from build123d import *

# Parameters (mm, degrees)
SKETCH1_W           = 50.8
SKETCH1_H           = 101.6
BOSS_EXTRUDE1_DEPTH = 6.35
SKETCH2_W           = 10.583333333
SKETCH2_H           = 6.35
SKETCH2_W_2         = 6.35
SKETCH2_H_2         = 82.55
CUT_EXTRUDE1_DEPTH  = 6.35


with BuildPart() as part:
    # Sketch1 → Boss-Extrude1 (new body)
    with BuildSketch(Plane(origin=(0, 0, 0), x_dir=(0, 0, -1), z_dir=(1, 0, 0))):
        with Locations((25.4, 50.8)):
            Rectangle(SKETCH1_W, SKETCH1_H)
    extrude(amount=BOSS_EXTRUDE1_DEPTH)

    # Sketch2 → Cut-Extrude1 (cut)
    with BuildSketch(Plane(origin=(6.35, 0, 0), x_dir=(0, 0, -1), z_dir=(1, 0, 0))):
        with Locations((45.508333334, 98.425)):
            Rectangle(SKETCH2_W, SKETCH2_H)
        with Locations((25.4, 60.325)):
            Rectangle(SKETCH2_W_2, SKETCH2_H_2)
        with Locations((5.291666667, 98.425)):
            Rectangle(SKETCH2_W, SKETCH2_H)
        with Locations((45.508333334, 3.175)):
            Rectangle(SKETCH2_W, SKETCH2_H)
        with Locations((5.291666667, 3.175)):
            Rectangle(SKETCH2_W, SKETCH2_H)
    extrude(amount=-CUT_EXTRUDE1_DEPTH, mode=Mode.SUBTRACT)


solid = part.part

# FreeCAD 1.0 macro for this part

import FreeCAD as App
import Part
import Sketcher
Q = App.Units.Quantity


def add_polygon(sketch, points):
    """Adds a closed chain of lines whose ends are joined by coincident constraints."""
    first, n = sketch.GeometryCount, len(points)
    for a, b in zip(points, points[1:] + points[:1]):
        sketch.addGeometry(Part.LineSegment(App.Vector(*a, 0), App.Vector(*b, 0)), False)
    for i in range(n):
        sketch.addConstraint(Sketcher.Constraint("Coincident", first + i, 2, first + (i + 1) % n, 1))

doc = App.newDocument("Part")
params = doc.addObject("Spreadsheet::Sheet", "Params")
for row, (alias, value) in enumerate([
    ("sketch1_width", "4 in"),
    ("sketch1_height", "2 in"),
    ("pad1_length", "0.25 in"),
    ("sketch2_width", "0.25 in"),
    ("pocket1_length", "0.25 in"),
], start=1):
    params.set(f"A{row}", alias)
    params.set(f"B{row}", "=" + value)
    params.setAlias(f"B{row}", alias)

body = doc.addObject("PartDesign::Body", "Body")

sketch1 = body.newObject("Sketcher::SketchObject", "Sketch")
sketch1.AttachmentSupport = (doc.getObject("YZ_Plane"), [""])
sketch1.MapMode = "FlatFace"
add_polygon(sketch1, [(102, 0), (0, 0), (0, -51), (102, -51)])
sketch1.addConstraint([
    Sketcher.Constraint("Horizontal", 0),
    Sketcher.Constraint("Vertical", 1),
    Sketcher.Constraint("Horizontal", 2),
    Sketcher.Constraint("Vertical", 3),
    Sketcher.Constraint("Coincident", 0, 2, -1, 1),
    Sketcher.Constraint("DistanceX", 0, 2, 0, 1, Q("4 in")),
    Sketcher.Constraint("DistanceY", 1, 2, 1, 1, Q("2 in")),
])
sketch1.setExpression("Constraints[9]", "Params.sketch1_width")
sketch1.setExpression("Constraints[10]", "Params.sketch1_height")
pad1 = body.newObject("PartDesign::Pad", "Pad")
pad1.Profile = sketch1
pad1.setExpression("Length", "Params.pad1_length")

sketch2 = body.newObject("Sketcher::SketchObject", "Sketch001")
sketch2.AttachmentSupport = (doc.getObject("YZ_Plane"), [""])
sketch2.MapMode = "FlatFace"
sketch2.AttachmentOffset = App.Placement(App.Vector(0, 0, 0.25 * 25.4), App.Rotation())
add_polygon(sketch2, [(102, -40), (95, -40), (95, -51), (102, -51)])
add_polygon(sketch2, [(102, -22), (19, -22), (19, -29), (102, -29)])
add_polygon(sketch2, [(102, 0), (95, 0), (95, -11), (102, -11)])
add_polygon(sketch2, [(6, -40), (0, -40), (0, -51), (6, -51)])
add_polygon(sketch2, [(6, 0), (0, 0), (0, -11), (6, -11)])
sketch2.addConstraint([
    Sketcher.Constraint("Horizontal", 0),
    Sketcher.Constraint("Vertical", 1),
    Sketcher.Constraint("Horizontal", 2),
    Sketcher.Constraint("Vertical", 3),
    Sketcher.Constraint("Horizontal", 4),
    Sketcher.Constraint("Vertical", 5),
    Sketcher.Constraint("Horizontal", 6),
    Sketcher.Constraint("Vertical", 7),
    Sketcher.Constraint("Horizontal", 8),
    Sketcher.Constraint("Vertical", 9),
    Sketcher.Constraint("Horizontal", 10),
    Sketcher.Constraint("Vertical", 11),
    Sketcher.Constraint("Horizontal", 12),
    Sketcher.Constraint("Vertical", 13),
    Sketcher.Constraint("Horizontal", 14),
    Sketcher.Constraint("Vertical", 15),
    Sketcher.Constraint("Horizontal", 16),
    Sketcher.Constraint("Vertical", 17),
    Sketcher.Constraint("Horizontal", 18),
    Sketcher.Constraint("Vertical", 19),
    Sketcher.Constraint("Coincident", 16, 2, -1, 1),
    Sketcher.Constraint("PointOnObject", 8, 2, -1),
    Sketcher.Constraint("PointOnObject", 12, 2, -2),
    Sketcher.Constraint("Horizontal", 3, 2, 12, 2),
    Sketcher.Constraint("Horizontal", 2, 2, 13, 2),
    Sketcher.Constraint("Horizontal", 10, 2, 17, 2),
    Sketcher.Constraint("Vertical", 3, 2, 6, 2),
    Sketcher.Constraint("Vertical", 1, 2, 8, 2),
    Sketcher.Constraint("Vertical", 7, 2, 10, 2),
    Sketcher.Constraint("Vertical", 15, 2, 18, 2),
    Sketcher.Constraint("Equal", 10, 12),
    Sketcher.Constraint("Equal", 18, 5),
    Sketcher.Constraint("Equal", 3, 9),
    Sketcher.Constraint("DistanceY", 1, 2, -1, 1, Q("2 in")),
    Sketcher.Constraint("DistanceX", -1, 1, 2, 2, Q("4 in")),
    Sketcher.Constraint("DistanceX", 4, 2, 0, 2, Q("3 in")),
    Sketcher.Constraint("DistanceX", 0, 2, 0, 1, Q("0.25 in")),
    Sketcher.Constraint("DistanceY", 4, 2, -1, 1, Q("0.875 in")),
    Sketcher.Constraint("DistanceY", 1, 2, 1, 1, Q("10.583333 mm")),
])
sketch2.setExpression("Constraints[56]", "Params.sketch2_width")
pocket1 = body.newObject("PartDesign::Pocket", "Pocket")
pocket1.Profile = sketch2
pocket1.setExpression("Length", "Params.pocket1_length")

doc.recompute()
